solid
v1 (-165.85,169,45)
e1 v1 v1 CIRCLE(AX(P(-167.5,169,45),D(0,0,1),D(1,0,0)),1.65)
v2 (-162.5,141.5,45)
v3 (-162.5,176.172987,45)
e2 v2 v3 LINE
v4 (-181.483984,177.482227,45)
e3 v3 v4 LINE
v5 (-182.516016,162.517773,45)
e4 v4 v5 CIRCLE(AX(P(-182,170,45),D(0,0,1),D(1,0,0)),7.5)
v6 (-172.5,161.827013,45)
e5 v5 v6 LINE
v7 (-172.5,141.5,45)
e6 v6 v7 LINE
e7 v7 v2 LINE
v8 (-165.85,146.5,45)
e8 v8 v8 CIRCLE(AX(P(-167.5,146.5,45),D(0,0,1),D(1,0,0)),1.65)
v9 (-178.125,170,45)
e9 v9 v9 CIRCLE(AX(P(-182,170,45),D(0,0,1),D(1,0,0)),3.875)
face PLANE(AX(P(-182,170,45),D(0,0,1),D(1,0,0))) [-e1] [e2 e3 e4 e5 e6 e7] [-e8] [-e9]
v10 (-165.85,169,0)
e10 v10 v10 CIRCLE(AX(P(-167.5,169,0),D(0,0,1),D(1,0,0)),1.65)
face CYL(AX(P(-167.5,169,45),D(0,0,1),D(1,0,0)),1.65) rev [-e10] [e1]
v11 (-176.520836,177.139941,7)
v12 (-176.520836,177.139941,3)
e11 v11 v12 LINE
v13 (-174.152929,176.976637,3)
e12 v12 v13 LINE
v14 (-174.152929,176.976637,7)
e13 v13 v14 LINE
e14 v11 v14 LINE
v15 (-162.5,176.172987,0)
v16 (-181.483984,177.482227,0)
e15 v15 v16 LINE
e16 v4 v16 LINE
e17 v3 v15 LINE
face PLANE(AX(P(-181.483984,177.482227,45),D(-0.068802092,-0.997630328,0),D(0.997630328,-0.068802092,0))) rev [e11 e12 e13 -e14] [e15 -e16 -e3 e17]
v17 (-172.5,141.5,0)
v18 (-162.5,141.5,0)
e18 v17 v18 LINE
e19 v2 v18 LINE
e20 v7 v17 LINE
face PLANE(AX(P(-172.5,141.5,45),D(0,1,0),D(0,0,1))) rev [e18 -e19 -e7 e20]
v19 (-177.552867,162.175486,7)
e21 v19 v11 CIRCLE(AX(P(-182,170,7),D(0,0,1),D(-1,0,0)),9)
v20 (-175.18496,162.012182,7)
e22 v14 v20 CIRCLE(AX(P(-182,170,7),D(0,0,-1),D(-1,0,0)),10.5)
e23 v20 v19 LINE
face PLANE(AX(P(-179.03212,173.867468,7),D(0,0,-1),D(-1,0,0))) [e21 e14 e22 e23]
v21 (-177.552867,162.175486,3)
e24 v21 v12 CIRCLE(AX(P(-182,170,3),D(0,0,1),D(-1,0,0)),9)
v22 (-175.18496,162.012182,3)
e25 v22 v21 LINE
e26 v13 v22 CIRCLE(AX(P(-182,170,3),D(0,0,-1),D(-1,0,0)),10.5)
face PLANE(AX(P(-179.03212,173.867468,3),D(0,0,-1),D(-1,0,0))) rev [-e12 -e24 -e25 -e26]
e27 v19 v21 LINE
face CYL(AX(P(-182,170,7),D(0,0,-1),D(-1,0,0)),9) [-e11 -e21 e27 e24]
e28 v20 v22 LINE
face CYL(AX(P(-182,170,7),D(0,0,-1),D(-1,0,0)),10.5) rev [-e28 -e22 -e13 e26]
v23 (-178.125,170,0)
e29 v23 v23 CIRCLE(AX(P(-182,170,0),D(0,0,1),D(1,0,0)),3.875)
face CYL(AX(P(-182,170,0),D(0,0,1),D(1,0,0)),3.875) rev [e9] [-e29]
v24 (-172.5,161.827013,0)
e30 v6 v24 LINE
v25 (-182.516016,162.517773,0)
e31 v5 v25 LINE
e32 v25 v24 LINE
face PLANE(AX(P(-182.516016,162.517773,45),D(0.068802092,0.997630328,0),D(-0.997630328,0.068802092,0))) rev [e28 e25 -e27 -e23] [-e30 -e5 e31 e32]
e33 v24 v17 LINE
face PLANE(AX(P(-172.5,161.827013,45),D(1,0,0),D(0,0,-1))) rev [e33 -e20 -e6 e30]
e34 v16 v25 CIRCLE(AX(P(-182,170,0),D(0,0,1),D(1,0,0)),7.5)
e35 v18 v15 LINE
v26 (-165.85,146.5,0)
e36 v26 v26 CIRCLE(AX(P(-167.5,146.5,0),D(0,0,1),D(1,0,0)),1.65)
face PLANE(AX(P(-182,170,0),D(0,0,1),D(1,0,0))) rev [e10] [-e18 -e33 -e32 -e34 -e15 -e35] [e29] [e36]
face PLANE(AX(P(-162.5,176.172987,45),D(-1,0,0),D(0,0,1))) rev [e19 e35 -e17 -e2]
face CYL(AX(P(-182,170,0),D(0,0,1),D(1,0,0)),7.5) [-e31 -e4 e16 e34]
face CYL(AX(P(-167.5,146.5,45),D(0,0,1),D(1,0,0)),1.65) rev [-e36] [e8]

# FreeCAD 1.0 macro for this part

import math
import FreeCAD as App
import Part
import Sketcher
from FreeCAD import Vector
Q = App.Units.Quantity

doc = App.newDocument("Part")
body = doc.addObject("PartDesign::Body", "Body")

# Sketch on XY plane
sketch1 = doc.addObject("Sketcher::SketchObject", "Sketch")
body.addObject(sketch1)
sketch1.AttachmentSupport = (doc.XY_Plane, [""])
sketch1.MapMode = "FlatFace"
sketch1.addGeometry(Part.LineSegment(Vector(-182.516016, 162.517773, 0), Vector(-172.5, 161.827013, 0)), False)
sketch1.addGeometry(Part.LineSegment(Vector(-172.5, 161.827013, 0), Vector(-172.5, 141.5, 0)), False)
sketch1.addGeometry(Part.LineSegment(Vector(-172.5, 141.5, 0), Vector(-162.5, 141.5, 0)), False)
sketch1.addGeometry(Part.LineSegment(Vector(-162.5, 141.5, 0), Vector(-162.5, 176.172987, 0)), False)
sketch1.addGeometry(Part.LineSegment(Vector(-162.5, 176.172987, 0), Vector(-181.483984, 177.482227, 0)), False)
sketch1.addGeometry(Part.ArcOfCircle(Part.Circle(Vector(-182, 170, 0), Vector(0, 0, 1), 7.5), math.radians(-93.945186), math.radians(86.054814)), False)
sketch1.addConstraint(Sketcher.Constraint("Coincident", 0, 2, 1, 1))
sketch1.addConstraint(Sketcher.Constraint("Coincident", 1, 2, 2, 1))
sketch1.addConstraint(Sketcher.Constraint("Coincident", 2, 2, 3, 1))
sketch1.addConstraint(Sketcher.Constraint("Coincident", 3, 2, 4, 1))
sketch1.addConstraint(Sketcher.Constraint("Tangent", 4, 2, 5, 2))
sketch1.addConstraint(Sketcher.Constraint("Tangent", 5, 1, 0, 1))
sketch1.addConstraint(Sketcher.Constraint("Vertical", 1))
sketch1.addConstraint(Sketcher.Constraint("Horizontal", 2))
sketch1.addConstraint(Sketcher.Constraint("Vertical", 3))
sketch1.addConstraint(Sketcher.Constraint("Parallel", 0, 4))
sketch1.addConstraint(Sketcher.Constraint("Radius", 5, Q("7.5 mm")))
sketch1.addConstraint(Sketcher.Constraint("DistanceX", 2, 1, 2, 2, Q("10 mm")))
sketch1.addConstraint(Sketcher.Constraint("DistanceX", 5, 3, -1, 1, Q("182 mm")))
sketch1.addConstraint(Sketcher.Constraint("DistanceY", -1, 1, 5, 3, Q("170 mm")))
sketch1.addConstraint(Sketcher.Constraint("DistanceX", 0, 2, -1, 1, Q("172.5 mm")))
sketch1.addConstraint(Sketcher.Constraint("DistanceY", -1, 1, 1, 2, Q("141.5 mm")))
sketch1.addConstraint(Sketcher.Constraint("DistanceY", 1, 2, 1, 1, Q("20.327013 mm")))
pad1 = doc.addObject("PartDesign::Pad", "Pad")
body.addObject(pad1)
pad1.Profile = sketch1
pad1.Length = 45

# Sketch on XY plane
sketch2 = doc.addObject("Sketcher::SketchObject", "Sketch001")
body.addObject(sketch2)
sketch2.AttachmentSupport = (doc.XY_Plane, [""])
sketch2.MapMode = "FlatFace"
sketch2.AttachmentOffset = App.Placement(Vector(0, 0, 5), App.Rotation())
sketch2.addGeometry(Part.ArcOfCircle(Part.Circle(Vector(-182, 170, 0), Vector(0, 0, 1), 9), math.radians(-60.387876), math.radians(52.497504)), False)
sketch2.addGeometry(Part.ArcOfCircle(Part.Circle(Vector(-176.064239, 177.734936, 0), Vector(0, 0, 1), 0.75), math.radians(52.497504), math.radians(232.497504)), False)
sketch2.addGeometry(Part.ArcOfCircle(Part.Circle(Vector(-182, 170, 0), Vector(0, 0, 1), 10.5), math.radians(-60.387876), math.radians(52.497504)), False)
sketch2.addGeometry(Part.ArcOfCircle(Part.Circle(Vector(-177.182273, 161.523444, 0), Vector(0, 0, 1), 0.75), math.radians(119.612123), math.radians(299.612124)), False)
sketch2.addConstraint(Sketcher.Constraint("Tangent", 0, 2, 1, 2))
sketch2.addConstraint(Sketcher.Constraint("Tangent", 1, 1, 2, 2))
sketch2.addConstraint(Sketcher.Constraint("Tangent", 2, 1, 3, 2))
sketch2.addConstraint(Sketcher.Constraint("Tangent", 3, 1, 0, 1))
sketch2.addConstraint(Sketcher.Constraint("Coincident", 2, 3, 0, 3))
sketch2.addConstraint(Sketcher.Constraint("Radius", 0, Q("9 mm")))
sketch2.addConstraint(Sketcher.Constraint("Radius", 2, Q("10.5 mm")))
sketch2.addConstraint(Sketcher.Constraint("DistanceX", 0, 3, -1, 1, Q("182 mm")))
sketch2.addConstraint(Sketcher.Constraint("DistanceY", -1, 1, 0, 3, Q("170 mm")))
sketch2.addConstraint(Sketcher.Constraint("DistanceY", -1, 1, 2, 1, Q("160.871401 mm")))
sketch2.addConstraint(Sketcher.Constraint("DistanceX", 1, 3, -1, 1, Q("176.064239 mm")))
pocket1 = doc.addObject("PartDesign::Pocket", "Pocket")
body.addObject(pocket1)
pocket1.Profile = sketch2
pocket1.Length = 4
pocket1.Midplane = True

# Sketch on XY plane
sketch3 = doc.addObject("Sketcher::SketchObject", "Sketch002")
body.addObject(sketch3)
sketch3.AttachmentSupport = (doc.XY_Plane, [""])
sketch3.MapMode = "FlatFace"
sketch3.AttachmentOffset = App.Placement(Vector(0, 0, 45), App.Rotation())
sketch3.addGeometry(Part.Circle(Vector(-167.5, 169, 0), Vector(0, 0, 1), 1.65), False)
sketch3.addGeometry(Part.Circle(Vector(-167.5, 146.5, 0), Vector(0, 0, 1), 1.65), False)
sketch3.addConstraint(Sketcher.Constraint("Equal", 0, 1))
sketch3.addConstraint(Sketcher.Constraint("Vertical", 0, 3, 1, 3))
sketch3.addConstraint(Sketcher.Constraint("Diameter", 0, Q("3.3 mm")))
sketch3.addConstraint(Sketcher.Constraint("DistanceY", -1, 1, 0, 3, Q("169 mm")))
sketch3.addConstraint(Sketcher.Constraint("DistanceX", 0, 3, -1, 1, Q("167.5 mm")))
sketch3.addConstraint(Sketcher.Constraint("DistanceY", -1, 1, 1, 3, Q("146.5 mm")))
doc.recompute()
hole = doc.addObject("PartDesign::Hole", "Hole")
body.addObject(hole)
hole.Profile = sketch3
hole.ThreadType = "None"
hole.Diameter = 3.3
hole.DepthType = "ThroughAll"

# Sketch on XY plane
sketch4 = doc.addObject("Sketcher::SketchObject", "Sketch003")
body.addObject(sketch4)
sketch4.AttachmentSupport = (doc.XY_Plane, [""])
sketch4.MapMode = "FlatFace"
sketch4.AttachmentOffset = App.Placement(Vector(0, 0, 45), App.Rotation())
sketch4.addGeometry(Part.Circle(Vector(-182, 170, 0), Vector(0, 0, 1), 7.5), False)
sketch4.addConstraint(Sketcher.Constraint("Diameter", 0, Q("15 mm")))
sketch4.addConstraint(Sketcher.Constraint("DistanceX", 0, 3, -1, 1, Q("182 mm")))
sketch4.addConstraint(Sketcher.Constraint("DistanceY", -1, 1, 0, 3, Q("170 mm")))
pad2 = doc.addObject("PartDesign::Pad", "Pad001")
body.addObject(pad2)
pad2.Profile = sketch4
pad2.Length = 45
pad2.Reversed = True

# Sketch on XY plane
sketch5 = doc.addObject("Sketcher::SketchObject", "Sketch004")
body.addObject(sketch5)
sketch5.AttachmentSupport = (doc.XY_Plane, [""])
sketch5.MapMode = "FlatFace"
sketch5.AttachmentOffset = App.Placement(Vector(0, 0, 45), App.Rotation())
sketch5.addGeometry(Part.Circle(Vector(-182, 170, 0), Vector(0, 0, 1), 3.875), False)
sketch5.addConstraint(Sketcher.Constraint("Diameter", 0, Q("7.75 mm")))
sketch5.addConstraint(Sketcher.Constraint("DistanceX", 0, 3, -1, 1, Q("182 mm")))
sketch5.addConstraint(Sketcher.Constraint("DistanceY", -1, 1, 0, 3, Q("170 mm")))
pocket2 = doc.addObject("PartDesign::Pocket", "Pocket001")
body.addObject(pocket2)
pocket2.Profile = sketch5
pocket2.Type = "ThroughAll"

doc.recompute()
